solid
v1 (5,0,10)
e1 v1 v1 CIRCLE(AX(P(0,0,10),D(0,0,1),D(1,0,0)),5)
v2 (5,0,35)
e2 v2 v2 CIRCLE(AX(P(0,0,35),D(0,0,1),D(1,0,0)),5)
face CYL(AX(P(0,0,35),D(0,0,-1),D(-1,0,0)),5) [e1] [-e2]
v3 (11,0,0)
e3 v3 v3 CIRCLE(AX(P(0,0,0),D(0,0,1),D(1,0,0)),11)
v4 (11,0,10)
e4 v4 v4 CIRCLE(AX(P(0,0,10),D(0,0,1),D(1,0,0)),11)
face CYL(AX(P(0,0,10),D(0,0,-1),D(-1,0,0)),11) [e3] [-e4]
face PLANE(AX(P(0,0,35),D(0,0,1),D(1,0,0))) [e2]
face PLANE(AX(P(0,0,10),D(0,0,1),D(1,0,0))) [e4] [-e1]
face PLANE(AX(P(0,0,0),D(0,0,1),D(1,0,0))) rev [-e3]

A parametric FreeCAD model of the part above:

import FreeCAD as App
import Part
import Sketcher
Q = App.Units.Quantity

doc = App.newDocument("Part")
body = doc.addObject("PartDesign::Body", "Body")

# Sketch on XY plane
sketch1 = doc.addObject("Sketcher::SketchObject", "Sketch")
body.addObject(sketch1)
sketch1.AttachmentSupport = (doc.XY_Plane, [""])
sketch1.MapMode = "FlatFace"
sketch1.addGeometry(Part.Circle(App.Vector(0, 0, 0), App.Vector(0, 0, 1), 11), False)
sketch1.addConstraint([
    Sketcher.Constraint("Coincident", 0, 3, -1, 1),
    Sketcher.Constraint("Diameter", 0, Q("22 mm")),
])
pad1 = doc.addObject("PartDesign::Pad", "Pad")
body.addObject(pad1)
pad1.Profile = sketch1
pad1.Length = 10

# Sketch on XY plane
sketch2 = doc.addObject("Sketcher::SketchObject", "Sketch001")
body.addObject(sketch2)
sketch2.AttachmentSupport = (doc.XY_Plane, [""])
sketch2.MapMode = "FlatFace"
sketch2.AttachmentOffset = App.Placement(App.Vector(0, 0, 10), App.Rotation())
sketch2.addGeometry(Part.Circle(App.Vector(0, 0, 0), App.Vector(0, 0, 1), 5), False)
sketch2.addConstraint([
    Sketcher.Constraint("Coincident", 0, 3, -1, 1),
    Sketcher.Constraint("Diameter", 0, Q("10 mm")),
])
pad2 = doc.addObject("PartDesign::Pad", "Pad001")
body.addObject(pad2)
pad2.Profile = sketch2
pad2.Length = 25

doc.recompute()
